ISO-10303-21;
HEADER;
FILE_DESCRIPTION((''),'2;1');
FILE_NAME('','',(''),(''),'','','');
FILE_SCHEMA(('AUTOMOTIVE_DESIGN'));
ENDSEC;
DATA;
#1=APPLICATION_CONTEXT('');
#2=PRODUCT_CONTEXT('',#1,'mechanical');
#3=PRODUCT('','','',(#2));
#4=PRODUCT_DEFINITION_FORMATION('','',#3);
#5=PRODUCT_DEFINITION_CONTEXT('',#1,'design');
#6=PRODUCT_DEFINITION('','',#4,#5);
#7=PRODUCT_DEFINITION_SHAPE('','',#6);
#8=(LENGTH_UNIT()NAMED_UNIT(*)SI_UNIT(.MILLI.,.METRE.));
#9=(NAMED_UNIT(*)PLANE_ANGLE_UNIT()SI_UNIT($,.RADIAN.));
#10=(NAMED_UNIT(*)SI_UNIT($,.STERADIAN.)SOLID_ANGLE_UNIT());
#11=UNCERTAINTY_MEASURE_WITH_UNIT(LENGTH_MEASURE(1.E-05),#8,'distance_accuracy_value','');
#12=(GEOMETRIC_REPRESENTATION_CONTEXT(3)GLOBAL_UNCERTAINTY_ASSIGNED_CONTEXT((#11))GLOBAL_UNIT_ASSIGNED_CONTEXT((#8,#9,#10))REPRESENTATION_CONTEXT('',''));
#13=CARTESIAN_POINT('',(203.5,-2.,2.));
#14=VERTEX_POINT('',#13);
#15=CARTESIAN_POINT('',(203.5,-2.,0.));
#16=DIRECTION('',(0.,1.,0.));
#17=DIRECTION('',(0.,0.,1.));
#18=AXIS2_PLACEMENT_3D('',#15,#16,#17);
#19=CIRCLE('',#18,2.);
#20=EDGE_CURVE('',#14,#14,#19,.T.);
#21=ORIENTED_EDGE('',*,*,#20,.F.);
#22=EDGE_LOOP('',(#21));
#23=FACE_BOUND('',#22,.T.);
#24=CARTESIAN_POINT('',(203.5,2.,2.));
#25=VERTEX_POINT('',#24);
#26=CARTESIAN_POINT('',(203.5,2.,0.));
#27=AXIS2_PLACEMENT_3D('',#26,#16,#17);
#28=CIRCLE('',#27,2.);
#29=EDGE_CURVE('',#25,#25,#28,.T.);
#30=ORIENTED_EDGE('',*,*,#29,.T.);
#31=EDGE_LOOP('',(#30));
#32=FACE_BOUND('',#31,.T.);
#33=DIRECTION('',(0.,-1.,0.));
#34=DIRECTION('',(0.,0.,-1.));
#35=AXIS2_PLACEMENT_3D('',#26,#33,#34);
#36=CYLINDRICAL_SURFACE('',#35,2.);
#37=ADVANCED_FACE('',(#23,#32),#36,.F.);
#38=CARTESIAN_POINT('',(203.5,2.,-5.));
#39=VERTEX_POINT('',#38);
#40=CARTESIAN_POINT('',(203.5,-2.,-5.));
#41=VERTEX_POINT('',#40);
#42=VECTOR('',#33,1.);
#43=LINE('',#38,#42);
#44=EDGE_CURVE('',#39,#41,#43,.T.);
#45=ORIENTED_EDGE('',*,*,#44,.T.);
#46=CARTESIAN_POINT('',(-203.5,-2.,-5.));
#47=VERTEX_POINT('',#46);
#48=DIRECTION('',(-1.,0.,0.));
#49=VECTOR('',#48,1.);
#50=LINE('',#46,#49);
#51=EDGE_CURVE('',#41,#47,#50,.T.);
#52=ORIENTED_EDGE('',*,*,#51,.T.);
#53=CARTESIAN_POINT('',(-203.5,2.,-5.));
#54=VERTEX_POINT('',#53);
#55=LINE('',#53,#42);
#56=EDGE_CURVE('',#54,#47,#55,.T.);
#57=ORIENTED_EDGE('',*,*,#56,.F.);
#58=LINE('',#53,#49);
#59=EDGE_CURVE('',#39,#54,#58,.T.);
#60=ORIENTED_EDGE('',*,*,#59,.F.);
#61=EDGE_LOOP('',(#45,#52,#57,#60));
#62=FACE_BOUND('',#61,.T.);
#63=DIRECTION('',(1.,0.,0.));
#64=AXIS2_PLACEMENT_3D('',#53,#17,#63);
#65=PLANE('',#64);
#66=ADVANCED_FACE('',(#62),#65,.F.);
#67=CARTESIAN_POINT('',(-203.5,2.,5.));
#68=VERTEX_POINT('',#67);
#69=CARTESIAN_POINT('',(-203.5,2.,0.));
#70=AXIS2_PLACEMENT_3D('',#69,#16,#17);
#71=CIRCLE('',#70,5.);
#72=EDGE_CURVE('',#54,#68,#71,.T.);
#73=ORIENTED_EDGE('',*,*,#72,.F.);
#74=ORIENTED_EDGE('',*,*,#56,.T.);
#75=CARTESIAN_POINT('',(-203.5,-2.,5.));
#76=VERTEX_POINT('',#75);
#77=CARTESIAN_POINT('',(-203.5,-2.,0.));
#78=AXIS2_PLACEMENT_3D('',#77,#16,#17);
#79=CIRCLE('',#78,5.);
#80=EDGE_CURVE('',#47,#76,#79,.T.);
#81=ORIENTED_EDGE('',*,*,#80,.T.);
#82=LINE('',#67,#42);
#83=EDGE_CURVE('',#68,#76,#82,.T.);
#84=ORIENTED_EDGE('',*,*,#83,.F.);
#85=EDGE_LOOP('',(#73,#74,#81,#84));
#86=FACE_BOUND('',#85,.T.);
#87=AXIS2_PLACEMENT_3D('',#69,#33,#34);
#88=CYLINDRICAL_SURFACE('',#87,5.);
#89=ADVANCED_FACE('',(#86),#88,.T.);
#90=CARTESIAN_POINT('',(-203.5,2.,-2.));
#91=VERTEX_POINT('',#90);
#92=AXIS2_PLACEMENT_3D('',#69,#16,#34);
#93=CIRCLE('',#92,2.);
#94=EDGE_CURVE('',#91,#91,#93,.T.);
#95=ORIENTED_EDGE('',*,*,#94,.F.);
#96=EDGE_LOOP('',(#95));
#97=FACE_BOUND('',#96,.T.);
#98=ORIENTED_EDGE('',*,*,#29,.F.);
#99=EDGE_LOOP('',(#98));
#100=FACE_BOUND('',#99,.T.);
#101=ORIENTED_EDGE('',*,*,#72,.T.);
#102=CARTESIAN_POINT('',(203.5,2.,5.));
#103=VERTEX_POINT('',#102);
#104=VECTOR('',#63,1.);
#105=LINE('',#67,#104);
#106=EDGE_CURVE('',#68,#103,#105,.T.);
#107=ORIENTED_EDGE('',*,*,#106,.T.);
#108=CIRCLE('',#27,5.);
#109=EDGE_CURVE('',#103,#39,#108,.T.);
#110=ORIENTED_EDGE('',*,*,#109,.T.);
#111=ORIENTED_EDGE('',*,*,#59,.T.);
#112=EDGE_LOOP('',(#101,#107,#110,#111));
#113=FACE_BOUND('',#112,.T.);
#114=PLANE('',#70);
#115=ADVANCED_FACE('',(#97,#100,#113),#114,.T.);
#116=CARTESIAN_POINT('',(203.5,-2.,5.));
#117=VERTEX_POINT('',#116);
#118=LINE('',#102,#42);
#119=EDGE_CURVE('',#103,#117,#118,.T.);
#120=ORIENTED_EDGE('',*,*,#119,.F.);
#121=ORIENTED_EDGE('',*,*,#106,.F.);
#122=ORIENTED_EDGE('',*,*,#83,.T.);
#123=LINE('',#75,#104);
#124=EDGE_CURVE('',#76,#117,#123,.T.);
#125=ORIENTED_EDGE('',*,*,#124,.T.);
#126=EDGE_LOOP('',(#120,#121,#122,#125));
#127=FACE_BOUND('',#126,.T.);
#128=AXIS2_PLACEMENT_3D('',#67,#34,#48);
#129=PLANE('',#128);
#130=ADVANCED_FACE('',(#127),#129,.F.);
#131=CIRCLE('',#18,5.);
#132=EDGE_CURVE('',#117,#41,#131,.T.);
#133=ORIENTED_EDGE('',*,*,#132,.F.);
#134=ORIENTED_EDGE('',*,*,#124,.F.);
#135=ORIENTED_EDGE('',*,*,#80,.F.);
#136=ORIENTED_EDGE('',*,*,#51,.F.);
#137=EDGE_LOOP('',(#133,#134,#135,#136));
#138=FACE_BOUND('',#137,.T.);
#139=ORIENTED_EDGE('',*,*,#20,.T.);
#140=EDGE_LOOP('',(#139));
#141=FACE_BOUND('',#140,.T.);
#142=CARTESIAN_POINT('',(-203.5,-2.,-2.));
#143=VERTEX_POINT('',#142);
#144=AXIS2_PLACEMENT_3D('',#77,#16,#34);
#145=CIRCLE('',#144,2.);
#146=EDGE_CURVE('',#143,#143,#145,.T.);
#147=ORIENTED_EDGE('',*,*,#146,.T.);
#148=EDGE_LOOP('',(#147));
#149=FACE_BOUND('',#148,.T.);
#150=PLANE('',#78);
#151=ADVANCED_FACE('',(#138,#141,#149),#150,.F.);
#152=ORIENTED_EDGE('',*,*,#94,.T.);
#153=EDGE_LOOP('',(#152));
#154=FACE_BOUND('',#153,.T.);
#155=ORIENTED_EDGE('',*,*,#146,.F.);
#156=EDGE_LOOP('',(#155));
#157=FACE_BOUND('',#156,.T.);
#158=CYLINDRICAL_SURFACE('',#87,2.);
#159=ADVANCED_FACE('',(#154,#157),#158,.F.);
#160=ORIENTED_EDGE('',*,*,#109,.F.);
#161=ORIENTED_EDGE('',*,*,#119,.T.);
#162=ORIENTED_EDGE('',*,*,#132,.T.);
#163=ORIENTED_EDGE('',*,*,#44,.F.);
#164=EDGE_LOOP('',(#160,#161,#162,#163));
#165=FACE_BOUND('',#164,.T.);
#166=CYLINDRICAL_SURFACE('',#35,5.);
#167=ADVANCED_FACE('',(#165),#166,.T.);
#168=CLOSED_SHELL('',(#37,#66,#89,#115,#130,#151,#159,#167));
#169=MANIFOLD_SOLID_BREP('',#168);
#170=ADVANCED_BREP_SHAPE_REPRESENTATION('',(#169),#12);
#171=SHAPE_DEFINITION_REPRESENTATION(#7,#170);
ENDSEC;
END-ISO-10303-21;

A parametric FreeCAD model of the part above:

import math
import FreeCAD as App
import Part
import Sketcher

V = App.Vector
Q = App.Units.Quantity

doc = App.newDocument("Part")
body = doc.addObject("PartDesign::Body", "Body")

# Sketch on XZ plane
sketch1 = body.newObject("Sketcher::SketchObject", "Sketch")
sketch1.AttachmentSupport = (doc.getObject("XZ_Plane"), [""])
sketch1.MapMode = "FlatFace"
sketch1.addGeometry([
    Part.LineSegment(V(203.5, -5, 0), V(-203.5, -5, 0)),  # 0
    Part.ArcOfCircle(Part.Circle(V(-203.5, 0, 0), V(0, 0, 1), 5), math.radians(90), math.radians(270)),  # 1
    Part.LineSegment(V(-203.5, 5, 0), V(203.5, 5, 0)),  # 2
    Part.ArcOfCircle(Part.Circle(V(203.5, 0, 0), V(0, 0, 1), 5), math.radians(-90), math.radians(90)),  # 3
    Part.Circle(V(203.5, 0, 0), V(0, 0, 1), 2),  # 4
    Part.Circle(V(-203.5, 0, 0), V(0, 0, 1), 2),  # 5
], False)
sketch1.addConstraint([
    Sketcher.Constraint("Tangent", 0, 2, 1, 2),
    Sketcher.Constraint("Tangent", 1, 1, 2, 1),
    Sketcher.Constraint("Tangent", 2, 2, 3, 2),
    Sketcher.Constraint("Tangent", 3, 1, 0, 1),
    Sketcher.Constraint("Horizontal", 0),
    Sketcher.Constraint("Horizontal", 2),
    Sketcher.Constraint("Coincident", 4, 3, 3, 3),
    Sketcher.Constraint("Coincident", 5, 3, 1, 3),
    Sketcher.Constraint("Equal", 4, 5),
    Sketcher.Constraint("Symmetric", 1, 3, 3, 3, -1, 1),
    Sketcher.Constraint("Diameter", 4, Q("4 mm")),
    Sketcher.Constraint("Radius", 1, Q("5 mm")),
    Sketcher.Constraint("DistanceX", 0, 2, 0, 1, Q("407 mm")),
])
pad1 = body.newObject("PartDesign::Pad", "Pad")
pad1.Profile = sketch1
pad1.Length = 4
pad1.Midplane = True

doc.recompute()
